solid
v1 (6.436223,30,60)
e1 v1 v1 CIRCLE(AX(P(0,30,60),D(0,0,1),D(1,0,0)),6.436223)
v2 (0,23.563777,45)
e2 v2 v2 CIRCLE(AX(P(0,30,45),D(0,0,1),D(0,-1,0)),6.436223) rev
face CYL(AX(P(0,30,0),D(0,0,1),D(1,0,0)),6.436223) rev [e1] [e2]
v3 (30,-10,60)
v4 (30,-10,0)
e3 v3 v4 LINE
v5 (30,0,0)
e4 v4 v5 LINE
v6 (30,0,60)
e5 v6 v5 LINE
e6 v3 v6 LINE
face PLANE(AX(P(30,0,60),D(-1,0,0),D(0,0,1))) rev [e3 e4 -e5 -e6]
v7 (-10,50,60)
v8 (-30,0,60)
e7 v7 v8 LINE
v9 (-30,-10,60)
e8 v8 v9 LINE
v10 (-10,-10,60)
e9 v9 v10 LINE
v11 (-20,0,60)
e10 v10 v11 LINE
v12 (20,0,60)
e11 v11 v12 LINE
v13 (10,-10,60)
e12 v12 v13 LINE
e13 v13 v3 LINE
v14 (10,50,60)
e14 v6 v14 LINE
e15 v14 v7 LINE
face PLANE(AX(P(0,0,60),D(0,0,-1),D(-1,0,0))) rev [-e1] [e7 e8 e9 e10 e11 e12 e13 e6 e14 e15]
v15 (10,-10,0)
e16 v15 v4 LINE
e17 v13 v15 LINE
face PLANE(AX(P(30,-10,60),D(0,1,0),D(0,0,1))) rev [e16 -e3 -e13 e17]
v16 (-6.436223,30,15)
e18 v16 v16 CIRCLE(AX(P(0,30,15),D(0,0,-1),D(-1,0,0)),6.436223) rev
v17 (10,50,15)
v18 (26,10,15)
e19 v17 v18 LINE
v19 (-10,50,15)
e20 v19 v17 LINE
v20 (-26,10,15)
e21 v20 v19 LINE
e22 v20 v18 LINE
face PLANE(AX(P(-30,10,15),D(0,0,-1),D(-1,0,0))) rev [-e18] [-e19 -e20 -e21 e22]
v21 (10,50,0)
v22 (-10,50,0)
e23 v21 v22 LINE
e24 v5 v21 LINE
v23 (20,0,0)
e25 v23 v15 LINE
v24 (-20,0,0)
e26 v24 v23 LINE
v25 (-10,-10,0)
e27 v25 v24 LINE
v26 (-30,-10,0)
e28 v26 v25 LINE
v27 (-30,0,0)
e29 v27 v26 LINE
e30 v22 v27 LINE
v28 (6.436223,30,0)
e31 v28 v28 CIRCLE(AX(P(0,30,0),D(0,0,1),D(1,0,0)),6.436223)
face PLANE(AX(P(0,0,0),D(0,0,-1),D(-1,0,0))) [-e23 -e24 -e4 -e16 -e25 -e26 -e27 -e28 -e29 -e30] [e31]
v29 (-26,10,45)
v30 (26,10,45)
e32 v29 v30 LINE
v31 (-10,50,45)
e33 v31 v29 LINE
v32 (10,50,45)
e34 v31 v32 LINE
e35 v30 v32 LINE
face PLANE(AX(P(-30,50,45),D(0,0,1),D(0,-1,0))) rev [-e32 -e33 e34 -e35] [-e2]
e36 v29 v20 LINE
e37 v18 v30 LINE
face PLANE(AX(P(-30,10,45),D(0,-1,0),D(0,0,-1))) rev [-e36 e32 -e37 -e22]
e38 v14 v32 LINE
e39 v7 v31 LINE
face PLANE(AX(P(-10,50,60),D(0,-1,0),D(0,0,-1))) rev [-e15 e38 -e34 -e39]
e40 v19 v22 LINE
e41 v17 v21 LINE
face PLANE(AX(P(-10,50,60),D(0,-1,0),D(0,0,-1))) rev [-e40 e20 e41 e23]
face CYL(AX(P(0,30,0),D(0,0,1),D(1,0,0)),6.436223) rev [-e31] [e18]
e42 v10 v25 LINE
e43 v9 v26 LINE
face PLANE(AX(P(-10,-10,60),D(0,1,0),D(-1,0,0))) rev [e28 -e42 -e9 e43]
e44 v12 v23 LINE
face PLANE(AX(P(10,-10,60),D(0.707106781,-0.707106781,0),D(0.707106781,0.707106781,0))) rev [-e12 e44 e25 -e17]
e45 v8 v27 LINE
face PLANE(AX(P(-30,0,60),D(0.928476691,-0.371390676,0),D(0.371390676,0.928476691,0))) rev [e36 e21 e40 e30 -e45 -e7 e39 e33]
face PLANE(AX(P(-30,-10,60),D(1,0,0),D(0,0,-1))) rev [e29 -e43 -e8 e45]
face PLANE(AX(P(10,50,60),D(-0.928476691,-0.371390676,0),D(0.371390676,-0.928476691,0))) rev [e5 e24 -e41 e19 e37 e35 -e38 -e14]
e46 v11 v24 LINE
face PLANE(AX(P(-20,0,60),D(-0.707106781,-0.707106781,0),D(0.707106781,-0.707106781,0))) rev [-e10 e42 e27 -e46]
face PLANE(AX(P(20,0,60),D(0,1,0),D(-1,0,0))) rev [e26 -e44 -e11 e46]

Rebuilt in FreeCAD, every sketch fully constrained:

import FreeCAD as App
import Part
import Sketcher
from FreeCAD import Vector

doc = App.newDocument("Part")
body = doc.addObject("PartDesign::Body", "Body")

# Sketch on XY plane
sketch1 = body.newObject("Sketcher::SketchObject", "Sketch")
sketch1.AttachmentSupport = (doc.getObject("XY_Plane"), [""])
sketch1.MapMode = "FlatFace"
sketch1.addGeometry(Part.LineSegment(Vector(-30, 0, 0), Vector(-30, -10, 0)), False)
sketch1.addGeometry(Part.LineSegment(Vector(-30, -10, 0), Vector(-10, -10, 0)), False)
sketch1.addGeometry(Part.LineSegment(Vector(-10, -10, 0), Vector(-20, 0, 0)), False)
sketch1.addGeometry(Part.LineSegment(Vector(-20, 0, 0), Vector(20, 0, 0)), False)
sketch1.addGeometry(Part.LineSegment(Vector(20, 0, 0), Vector(10, -10, 0)), False)
sketch1.addGeometry(Part.LineSegment(Vector(10, -10, 0), Vector(30, -10, 0)), False)
sketch1.addGeometry(Part.LineSegment(Vector(30, -10, 0), Vector(30, 0, 0)), False)
sketch1.addGeometry(Part.LineSegment(Vector(30, 0, 0), Vector(10, 50, 0)), False)
sketch1.addGeometry(Part.LineSegment(Vector(10, 50, 0), Vector(-10, 50, 0)), False)
sketch1.addGeometry(Part.LineSegment(Vector(-10, 50, 0), Vector(-30, 0, 0)), False)
sketch1.addConstraint(Sketcher.Constraint("Coincident", 0, 2, 1, 1))
sketch1.addConstraint(Sketcher.Constraint("Coincident", 1, 2, 2, 1))
sketch1.addConstraint(Sketcher.Constraint("Coincident", 2, 2, 3, 1))
sketch1.addConstraint(Sketcher.Constraint("Coincident", 3, 2, 4, 1))
sketch1.addConstraint(Sketcher.Constraint("Coincident", 4, 2, 5, 1))
sketch1.addConstraint(Sketcher.Constraint("Coincident", 5, 2, 6, 1))
sketch1.addConstraint(Sketcher.Constraint("Coincident", 6, 2, 7, 1))
sketch1.addConstraint(Sketcher.Constraint("Coincident", 7, 2, 8, 1))
sketch1.addConstraint(Sketcher.Constraint("Coincident", 8, 2, 9, 1))
sketch1.addConstraint(Sketcher.Constraint("Coincident", 9, 2, 0, 1))
sketch1.addConstraint(Sketcher.Constraint("Vertical", 0))
sketch1.addConstraint(Sketcher.Constraint("Horizontal", 1))
sketch1.addConstraint(Sketcher.Constraint("Horizontal", 3))
sketch1.addConstraint(Sketcher.Constraint("Horizontal", 5))
sketch1.addConstraint(Sketcher.Constraint("Vertical", 6))
sketch1.addConstraint(Sketcher.Constraint("Horizontal", 8))
sketch1.addConstraint(Sketcher.Constraint("Symmetric", 2, 2, 3, 2, -1, 1))
sketch1.addConstraint(Sketcher.Constraint("Symmetric", 6, 2, 9, 2, -1, 1))
sketch1.addConstraint(Sketcher.Constraint("Symmetric", 1, 2, 4, 2, -2))
sketch1.addConstraint(Sketcher.Constraint("PointOnObject", 6, 2, -1))
sketch1.addConstraint(Sketcher.Constraint("Perpendicular", 2, 4))
sketch1.addConstraint(Sketcher.Constraint("Vertical", 4, 2, 7, 2))
sketch1.addConstraint(Sketcher.Constraint("Vertical", 1, 2, 8, 2))
sketch1.addConstraint(Sketcher.Constraint("Equal", 5, 8))
sketch1.addConstraint(Sketcher.Constraint("DistanceX", 1, 1, 1, 2, 20.0))
sketch1.addConstraint(Sketcher.Constraint("DistanceX", 3, 1, 3, 2, 40.0))
sketch1.addConstraint(Sketcher.Constraint("DistanceY", -1, 1, 7, 2, 50.0))
pad1 = body.newObject("PartDesign::Pad", "Pad")
pad1.Profile = sketch1
pad1.Length = 60

# Sketch on XY plane
sketch2 = body.newObject("Sketcher::SketchObject", "Sketch001")
sketch2.AttachmentSupport = (doc.getObject("XY_Plane"), [""])
sketch2.MapMode = "FlatFace"
sketch2.AttachmentOffset = App.Placement(Vector(0, 0, 60), App.Rotation())
sketch2.addGeometry(Part.Circle(Vector(0, 30, 0), Vector(0, 0, 1), 6), False)
sketch2.addConstraint(Sketcher.Constraint("PointOnObject", 0, 3, -2))
sketch2.addConstraint(Sketcher.Constraint("DistanceY", -1, 1, 0, 3, 30.0))
sketch2.addConstraint(Sketcher.Constraint("Diameter", 0, 12.872447))
pocket1 = body.newObject("PartDesign::Pocket", "Pocket")
pocket1.Profile = sketch2
pocket1.Type = "ThroughAll"

# Sketch on YZ plane
sketch3 = body.newObject("Sketcher::SketchObject", "Sketch002")
sketch3.AttachmentSupport = (doc.getObject("YZ_Plane"), [""])
sketch3.MapMode = "FlatFace"
sketch3.AttachmentOffset = App.Placement(Vector(0, 0, 30), App.Rotation())
sketch3.addGeometry(Part.LineSegment(Vector(50, 45, 0), Vector(10, 45, 0)), False)
sketch3.addGeometry(Part.LineSegment(Vector(10, 45, 0), Vector(10, 15, 0)), False)
sketch3.addGeometry(Part.LineSegment(Vector(10, 15, 0), Vector(50, 15, 0)), False)
sketch3.addGeometry(Part.LineSegment(Vector(50, 15, 0), Vector(50, 45, 0)), False)
sketch3.addConstraint(Sketcher.Constraint("Coincident", 0, 2, 1, 1))
sketch3.addConstraint(Sketcher.Constraint("Coincident", 1, 2, 2, 1))
sketch3.addConstraint(Sketcher.Constraint("Coincident", 2, 2, 3, 1))
sketch3.addConstraint(Sketcher.Constraint("Coincident", 3, 2, 0, 1))
sketch3.addConstraint(Sketcher.Constraint("Horizontal", 0))
sketch3.addConstraint(Sketcher.Constraint("Vertical", 1))
sketch3.addConstraint(Sketcher.Constraint("Horizontal", 2))
sketch3.addConstraint(Sketcher.Constraint("Vertical", 3))
sketch3.addConstraint(Sketcher.Constraint("DistanceX", 0, 2, 0, 1, 40.0))
sketch3.addConstraint(Sketcher.Constraint("DistanceY", 1, 2, 1, 1, 30.0))
sketch3.addConstraint(Sketcher.Constraint("DistanceX", -1, 1, 0, 2, 10.0))
sketch3.addConstraint(Sketcher.Constraint("DistanceY", -1, 1, 0, 2, 45.0))
pocket2 = body.newObject("PartDesign::Pocket", "Pocket001")
pocket2.Profile = sketch3
pocket2.Type = "ThroughAll"

doc.recompute()
